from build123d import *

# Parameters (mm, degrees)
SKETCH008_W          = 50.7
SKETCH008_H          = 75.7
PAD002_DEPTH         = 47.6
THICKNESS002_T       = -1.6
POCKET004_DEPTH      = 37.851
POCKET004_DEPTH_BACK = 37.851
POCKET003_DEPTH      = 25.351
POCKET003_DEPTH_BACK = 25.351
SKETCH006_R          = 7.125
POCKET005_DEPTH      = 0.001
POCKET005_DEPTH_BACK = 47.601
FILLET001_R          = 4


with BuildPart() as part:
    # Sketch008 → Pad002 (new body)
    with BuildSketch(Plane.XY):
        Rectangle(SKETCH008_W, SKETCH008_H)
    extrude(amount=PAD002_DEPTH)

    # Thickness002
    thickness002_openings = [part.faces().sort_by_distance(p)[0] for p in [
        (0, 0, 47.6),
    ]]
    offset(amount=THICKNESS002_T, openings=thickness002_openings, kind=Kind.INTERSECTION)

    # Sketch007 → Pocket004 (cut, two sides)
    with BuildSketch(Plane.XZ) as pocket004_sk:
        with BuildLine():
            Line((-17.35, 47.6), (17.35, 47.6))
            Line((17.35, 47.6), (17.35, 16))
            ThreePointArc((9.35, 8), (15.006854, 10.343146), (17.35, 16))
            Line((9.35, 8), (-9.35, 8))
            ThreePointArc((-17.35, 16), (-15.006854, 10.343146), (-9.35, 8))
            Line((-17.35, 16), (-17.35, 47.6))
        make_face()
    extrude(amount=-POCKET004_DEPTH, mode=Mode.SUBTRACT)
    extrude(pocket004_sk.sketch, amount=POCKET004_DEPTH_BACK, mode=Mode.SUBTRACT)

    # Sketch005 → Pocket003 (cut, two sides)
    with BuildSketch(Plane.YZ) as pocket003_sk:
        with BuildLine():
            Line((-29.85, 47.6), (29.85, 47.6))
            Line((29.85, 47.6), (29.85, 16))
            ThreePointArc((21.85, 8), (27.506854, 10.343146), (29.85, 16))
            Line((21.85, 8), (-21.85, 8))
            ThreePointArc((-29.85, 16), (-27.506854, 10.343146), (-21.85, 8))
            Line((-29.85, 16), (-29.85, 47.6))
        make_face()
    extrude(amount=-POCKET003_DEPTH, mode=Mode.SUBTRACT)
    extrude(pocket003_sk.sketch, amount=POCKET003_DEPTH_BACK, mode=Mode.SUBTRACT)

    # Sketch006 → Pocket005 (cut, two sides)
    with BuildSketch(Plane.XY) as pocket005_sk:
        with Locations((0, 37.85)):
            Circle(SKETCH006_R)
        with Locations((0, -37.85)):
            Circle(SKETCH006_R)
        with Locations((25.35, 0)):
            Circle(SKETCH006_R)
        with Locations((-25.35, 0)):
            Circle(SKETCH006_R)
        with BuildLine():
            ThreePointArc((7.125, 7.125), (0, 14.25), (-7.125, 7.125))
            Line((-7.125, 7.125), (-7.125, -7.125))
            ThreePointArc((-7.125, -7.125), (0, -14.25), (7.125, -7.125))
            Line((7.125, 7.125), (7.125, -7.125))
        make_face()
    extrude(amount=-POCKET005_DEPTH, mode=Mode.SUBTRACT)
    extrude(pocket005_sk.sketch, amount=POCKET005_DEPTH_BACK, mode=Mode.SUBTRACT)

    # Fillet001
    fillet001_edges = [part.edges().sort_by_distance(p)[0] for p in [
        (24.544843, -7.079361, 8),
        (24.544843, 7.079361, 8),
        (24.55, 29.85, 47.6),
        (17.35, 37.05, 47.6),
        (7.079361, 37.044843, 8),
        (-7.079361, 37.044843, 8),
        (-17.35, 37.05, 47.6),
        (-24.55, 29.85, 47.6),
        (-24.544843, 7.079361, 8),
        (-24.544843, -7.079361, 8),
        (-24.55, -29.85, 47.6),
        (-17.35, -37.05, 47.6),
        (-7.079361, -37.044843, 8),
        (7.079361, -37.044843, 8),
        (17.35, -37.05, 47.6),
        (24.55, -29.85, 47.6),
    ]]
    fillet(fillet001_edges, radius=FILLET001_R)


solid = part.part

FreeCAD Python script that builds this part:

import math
import FreeCAD as App
import Part
import Sketcher


def edges_at(feature, points):
    """Names of the edges that pass closest to the given points."""
    edges = feature.Shape.Edges
    near = lambda p: min(range(len(edges)), key=lambda i: edges[i].distToShape(Part.Vertex(*p))[0])
    return sorted({f"Edge{near(p) + 1}" for p in points})


def faces_at(feature, points):
    """Names of the faces that lie closest to the given points."""
    faces = feature.Shape.Faces
    near = lambda p: min(range(len(faces)), key=lambda i: faces[i].distToShape(Part.Vertex(*p))[0])
    return sorted({f"Face{near(p) + 1}" for p in points})

doc = App.newDocument("Part")
body = doc.addObject("PartDesign::Body", "Body")

# Sketch on XY plane
sketch1 = body.newObject("Sketcher::SketchObject", "Sketch")
sketch1.AttachmentSupport = (doc.getObject("XY_Plane"), [""])
sketch1.MapMode = "FlatFace"
sketch1.addGeometry([
    Part.LineSegment(App.Vector(-25, 38, 0), App.Vector(-25, -38, 0)),
    Part.LineSegment(App.Vector(-25, -38, 0), App.Vector(25, -38, 0)),
    Part.LineSegment(App.Vector(25, -38, 0), App.Vector(25, 38, 0)),
    Part.LineSegment(App.Vector(25, 38, 0), App.Vector(-25, 38, 0)),
], False)
sketch1.addConstraint([
    Sketcher.Constraint("Coincident", 0, 2, 1, 1),
    Sketcher.Constraint("Coincident", 1, 2, 2, 1),
    Sketcher.Constraint("Coincident", 2, 2, 3, 1),
    Sketcher.Constraint("Coincident", 3, 2, 0, 1),
    Sketcher.Constraint("Vertical", 0),
    Sketcher.Constraint("Horizontal", 1),
    Sketcher.Constraint("Vertical", 2),
    Sketcher.Constraint("Horizontal", 3),
    Sketcher.Constraint("Symmetric", 0, 2, 2, 2, -1, 1),
    Sketcher.Constraint("DistanceX", 1, 1, 1, 2, 50.7),
    Sketcher.Constraint("DistanceY", 0, 2, 0, 1, 75.7),
])
pad1 = body.newObject("PartDesign::Pad", "Pad")
pad1.Profile = sketch1
pad1.Length = 47.6
doc.recompute()

thickness = body.newObject("PartDesign::Thickness", "Thickness")
thickness.Base = (pad1, faces_at(pad1, [(0, 0, 47.6)]))
thickness.Value = 1.6
thickness.Reversed = True
thickness.Join = "Intersection"

# Sketch on XZ plane
sketch2 = body.newObject("Sketcher::SketchObject", "Sketch001")
sketch2.AttachmentSupport = (doc.getObject("XZ_Plane"), [""])
sketch2.MapMode = "FlatFace"
sketch2.addGeometry([
    Part.LineSegment(App.Vector(17, 48, 0), App.Vector(-17, 48, 0)),  # 0
    Part.LineSegment(App.Vector(-17, 48, 0), App.Vector(-17, 16, 0)),  # 1
    Part.ArcOfCircle(Part.Circle(App.Vector(-9, 16, 0), App.Vector(0, 0, 1), 8), math.radians(-180), math.radians(-90)),  # 2
    Part.LineSegment(App.Vector(-9, 8, 0), App.Vector(9, 8, 0)),  # 3
    Part.ArcOfCircle(Part.Circle(App.Vector(9, 16, 0), App.Vector(0, 0, 1), 8), math.radians(-90), math.radians(0)),  # 4
    Part.LineSegment(App.Vector(17, 16, 0), App.Vector(17, 48, 0)),  # 5
], False)
sketch2.addConstraint([
    Sketcher.Constraint("Coincident", 0, 2, 1, 1),
    Sketcher.Constraint("Tangent", 1, 2, 2, 1),
    Sketcher.Constraint("Tangent", 2, 2, 3, 1),
    Sketcher.Constraint("Tangent", 3, 2, 4, 1),
    Sketcher.Constraint("Tangent", 4, 2, 5, 1),
    Sketcher.Constraint("Coincident", 5, 2, 0, 1),
    Sketcher.Constraint("Horizontal", 0),
    Sketcher.Constraint("Vertical", 1),
    Sketcher.Constraint("Horizontal", 3),
    Sketcher.Constraint("Vertical", 5),
    Sketcher.Constraint("Equal", 2, 4),
    Sketcher.Constraint("Radius", 2, 8.000001),
    Sketcher.Constraint("DistanceX", 0, 2, 0, 1, 34.7),
    Sketcher.Constraint("DistanceY", 1, 2, 1, 1, 31.6),
    Sketcher.Constraint("DistanceY", -1, 1, 2, 3, 16.000001),
    Sketcher.Constraint("DistanceX", 2, 3, -1, 1, 9.349999),
])
pocket1 = body.newObject("PartDesign::Pocket", "Pocket")
pocket1.Profile = sketch2
pocket1.Type = "ThroughAll"
pocket1.Midplane = True

# Sketch on YZ plane
sketch3 = body.newObject("Sketcher::SketchObject", "Sketch002")
sketch3.AttachmentSupport = (doc.getObject("YZ_Plane"), [""])
sketch3.MapMode = "FlatFace"
sketch3.addGeometry([
    Part.LineSegment(App.Vector(30, 48, 0), App.Vector(-30, 48, 0)),  # 0
    Part.LineSegment(App.Vector(-30, 48, 0), App.Vector(-30, 16, 0)),  # 1
    Part.ArcOfCircle(Part.Circle(App.Vector(-22, 16, 0), App.Vector(0, 0, 1), 8), math.radians(-180), math.radians(-90)),  # 2
    Part.LineSegment(App.Vector(-22, 8, 0), App.Vector(22, 8, 0)),  # 3
    Part.ArcOfCircle(Part.Circle(App.Vector(22, 16, 0), App.Vector(0, 0, 1), 8), math.radians(-90), math.radians(0)),  # 4
    Part.LineSegment(App.Vector(30, 16, 0), App.Vector(30, 48, 0)),  # 5
], False)
sketch3.addConstraint([
    Sketcher.Constraint("Coincident", 0, 2, 1, 1),
    Sketcher.Constraint("Tangent", 1, 2, 2, 1),
    Sketcher.Constraint("Tangent", 2, 2, 3, 1),
    Sketcher.Constraint("Tangent", 3, 2, 4, 1),
    Sketcher.Constraint("Tangent", 4, 2, 5, 1),
    Sketcher.Constraint("Coincident", 5, 2, 0, 1),
    Sketcher.Constraint("Horizontal", 0),
    Sketcher.Constraint("Vertical", 1),
    Sketcher.Constraint("Horizontal", 3),
    Sketcher.Constraint("Vertical", 5),
    Sketcher.Constraint("Equal", 2, 4),
    Sketcher.Constraint("Radius", 2, 8.000001),
    Sketcher.Constraint("DistanceX", 0, 2, 0, 1, 59.7),
    Sketcher.Constraint("DistanceY", 1, 2, 1, 1, 31.6),
    Sketcher.Constraint("DistanceY", -1, 1, 2, 3, 16.000001),
    Sketcher.Constraint("DistanceX", 2, 3, -1, 1, 21.849999),
])
pocket2 = body.newObject("PartDesign::Pocket", "Pocket001")
pocket2.Profile = sketch3
pocket2.Type = "ThroughAll"
pocket2.Midplane = True

# Sketch on XY plane
sketch4 = body.newObject("Sketcher::SketchObject", "Sketch003")
sketch4.AttachmentSupport = (doc.getObject("XY_Plane"), [""])
sketch4.MapMode = "FlatFace"
sketch4.addGeometry([
    Part.Circle(App.Vector(0, 38, 0), App.Vector(0, 0, 1), 7),  # 0
    Part.Circle(App.Vector(0, -38, 0), App.Vector(0, 0, 1), 7),  # 1
    Part.Circle(App.Vector(25, 0, 0), App.Vector(0, 0, 1), 7),  # 2
    Part.Circle(App.Vector(-25, 0, 0), App.Vector(0, 0, 1), 7),  # 3
    Part.ArcOfCircle(Part.Circle(App.Vector(0, 7, 0), App.Vector(0, 0, 1), 7), math.radians(0), math.radians(180)),  # 4
    Part.LineSegment(App.Vector(-7, 7, 0), App.Vector(-7, -7, 0)),  # 5
    Part.ArcOfCircle(Part.Circle(App.Vector(0, -7, 0), App.Vector(0, 0, 1), 7), math.radians(180), math.radians(360)),  # 6
    Part.LineSegment(App.Vector(7, -7, 0), App.Vector(7, 7, 0)),  # 7
], False)
sketch4.addConstraint([
    Sketcher.Constraint("Tangent", 4, 2, 5, 1),
    Sketcher.Constraint("Tangent", 5, 2, 6, 1),
    Sketcher.Constraint("Tangent", 6, 2, 7, 1),
    Sketcher.Constraint("Tangent", 7, 2, 4, 1),
    Sketcher.Constraint("Vertical", 5),
    Sketcher.Constraint("Vertical", 7),
    Sketcher.Constraint("Equal", 0, 1),
    Sketcher.Constraint("Equal", 1, 2),
    Sketcher.Constraint("Equal", 2, 3),
    Sketcher.Constraint("Equal", 3, 4),
    Sketcher.Constraint("Symmetric", 0, 3, 1, 3, -1, 1),
    Sketcher.Constraint("Symmetric", 2, 3, 3, 3, -1, 1),
    Sketcher.Constraint("Symmetric", 4, 3, 6, 3, -1, 1),
    Sketcher.Constraint("PointOnObject", 0, 3, -2),
    Sketcher.Constraint("PointOnObject", 2, 3, -1),
    Sketcher.Constraint("Diameter", 0, 14.25),
    Sketcher.Constraint("DistanceY", 5, 2, 5, 1, 14.25),
    Sketcher.Constraint("DistanceY", 1, 3, 0, 3, 75.7),
    Sketcher.Constraint("DistanceX", 3, 3, 2, 3, 50.7),
])
pocket3 = body.newObject("PartDesign::Pocket", "Pocket002")
pocket3.Profile = sketch4
pocket3.Type = "ThroughAll"
pocket3.Midplane = True
doc.recompute()

fillet = body.newObject("PartDesign::Fillet", "Fillet")
fillet.Base = (pocket3, edges_at(pocket3, [
    (24.545, -7.079, 8),
    (24.545, 7.079, 8),
    (24.55, 29.85, 47.6),
    (17.35, 37.05, 47.6),
    (7.079, 37.045, 8),
    (-7.079, 37.045, 8),
    (-17.35, 37.05, 47.6),
    (-24.55, 29.85, 47.6),
    (-24.545, 7.079, 8),
    (-24.545, -7.079, 8),
    (-24.55, -29.85, 47.6),
    (-17.35, -37.05, 47.6),
    (-7.079, -37.045, 8),
    (7.079, -37.045, 8),
    (17.35, -37.05, 47.6),
    (24.55, -29.85, 47.6),
]))
fillet.Radius = 4

doc.recompute()
